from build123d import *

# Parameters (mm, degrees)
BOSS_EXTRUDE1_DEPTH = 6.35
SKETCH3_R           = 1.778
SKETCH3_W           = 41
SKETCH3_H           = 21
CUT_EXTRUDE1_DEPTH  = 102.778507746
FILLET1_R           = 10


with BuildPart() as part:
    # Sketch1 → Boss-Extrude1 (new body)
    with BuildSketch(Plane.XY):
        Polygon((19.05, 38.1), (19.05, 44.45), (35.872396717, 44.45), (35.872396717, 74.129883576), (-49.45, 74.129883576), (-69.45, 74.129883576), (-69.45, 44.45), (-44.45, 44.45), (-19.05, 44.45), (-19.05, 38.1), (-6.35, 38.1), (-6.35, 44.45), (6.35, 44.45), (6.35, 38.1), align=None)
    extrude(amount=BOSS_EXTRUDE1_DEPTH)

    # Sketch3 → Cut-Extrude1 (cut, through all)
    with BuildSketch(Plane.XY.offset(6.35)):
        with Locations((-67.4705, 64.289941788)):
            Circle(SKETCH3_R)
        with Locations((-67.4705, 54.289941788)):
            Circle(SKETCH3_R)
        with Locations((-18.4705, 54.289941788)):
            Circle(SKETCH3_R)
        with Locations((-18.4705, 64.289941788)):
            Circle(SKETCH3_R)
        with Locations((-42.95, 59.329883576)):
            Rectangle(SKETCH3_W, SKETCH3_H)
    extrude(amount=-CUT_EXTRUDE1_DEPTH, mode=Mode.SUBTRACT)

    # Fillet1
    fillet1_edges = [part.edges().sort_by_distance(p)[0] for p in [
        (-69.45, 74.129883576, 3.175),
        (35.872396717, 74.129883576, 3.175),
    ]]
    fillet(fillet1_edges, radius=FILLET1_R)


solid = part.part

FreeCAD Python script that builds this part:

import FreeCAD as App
import Part
import Sketcher
from FreeCAD import Vector


def edges_at(feature, points):
    """Names of the edges that pass closest to the given points."""
    edges = feature.Shape.Edges
    near = lambda p: min(range(len(edges)), key=lambda i: edges[i].distToShape(Part.Vertex(*p))[0])
    return sorted({f"Edge{near(p) + 1}" for p in points})


def add_polygon(sketch, points):
    """Adds a closed chain of lines whose ends are joined by coincident constraints."""
    first, n = sketch.GeometryCount, len(points)
    for a, b in zip(points, points[1:] + points[:1]):
        sketch.addGeometry(Part.LineSegment(App.Vector(*a, 0), App.Vector(*b, 0)), False)
    for i in range(n):
        sketch.addConstraint(Sketcher.Constraint("Coincident", first + i, 2, first + (i + 1) % n, 1))

doc = App.newDocument("Part")
body = doc.addObject("PartDesign::Body", "Body")

sketch1 = body.newObject("Sketcher::SketchObject", "Sketch")
sketch1.AttachmentSupport = (doc.getObject("XY_Plane"), [""])
sketch1.MapMode = "FlatFace"
add_polygon(sketch1, [(19, 38), (19, 44), (36, 44), (36, 74), (-69, 74), (-69, 44), (-19, 44), (-19, 38), (-6, 38), (-6, 44), (6, 44), (6, 38)])
sketch1.addConstraint([
    Sketcher.Constraint("Vertical", 0),
    Sketcher.Constraint("Horizontal", 1),
    Sketcher.Constraint("Vertical", 2),
    Sketcher.Constraint("Horizontal", 3),
    Sketcher.Constraint("Vertical", 4),
    Sketcher.Constraint("Horizontal", 5),
    Sketcher.Constraint("Vertical", 6),
    Sketcher.Constraint("Horizontal", 7),
    Sketcher.Constraint("Vertical", 8),
    Sketcher.Constraint("Horizontal", 9),
    Sketcher.Constraint("Vertical", 10),
    Sketcher.Constraint("Horizontal", 11),
    Sketcher.Constraint("Symmetric", 0, 2, 5, 2, -2),
    Sketcher.Constraint("Symmetric", 7, 2, 10, 2, -2),
    Sketcher.Constraint("Horizontal", 5, 2, 8, 2),
    Sketcher.Constraint("Equal", 7, 9),
    Sketcher.Constraint("DistanceX", 5, 1, 5, 2, 50.4),
    Sketcher.Constraint("DistanceX", 7, 1, 7, 2, 12.7),
    Sketcher.Constraint("DistanceY", 0, 1, 0, 2, 6.35),
    Sketcher.Constraint("DistanceY", -1, 1, 6, 2, 38.1),
    Sketcher.Constraint("DistanceX", 1, 1, 1, 2, 16.822397),
    Sketcher.Constraint("DistanceY", 2, 1, 2, 2, 29.679884),
])
pad1 = body.newObject("PartDesign::Pad", "Pad")
pad1.Profile = sketch1
pad1.Length = 6.35

sketch2 = body.newObject("Sketcher::SketchObject", "Sketch001")
sketch2.AttachmentSupport = (doc.getObject("XY_Plane"), [""])
sketch2.MapMode = "FlatFace"
sketch2.AttachmentOffset = App.Placement(Vector(0, 0, 6.35), App.Rotation())
sketch2.addGeometry(Part.Circle(Vector(-67.5, 64.3, 0), Vector(0, 0, 1), 1.8), False)
sketch2.addGeometry(Part.Circle(Vector(-67.5, 54.3, 0), Vector(0, 0, 1), 1.8), False)
sketch2.addGeometry(Part.Circle(Vector(-18.5, 54.3, 0), Vector(0, 0, 1), 1.8), False)
sketch2.addGeometry(Part.Circle(Vector(-18.5, 64.3, 0), Vector(0, 0, 1), 1.8), False)
add_polygon(sketch2, [(-63.5, 69.8), (-63.5, 48.8), (-22.4, 48.8), (-22.4, 69.8)])
sketch2.addConstraint([
    Sketcher.Constraint("Vertical", 4),
    Sketcher.Constraint("Horizontal", 5),
    Sketcher.Constraint("Vertical", 6),
    Sketcher.Constraint("Horizontal", 7),
    Sketcher.Constraint("Equal", 0, 1),
    Sketcher.Constraint("Equal", 1, 2),
    Sketcher.Constraint("Equal", 2, 3),
    Sketcher.Constraint("Horizontal", 1, 3, 2, 3),
    Sketcher.Constraint("Horizontal", 0, 3, 3, 3),
    Sketcher.Constraint("Vertical", 0, 3, 1, 3),
    Sketcher.Constraint("Vertical", 2, 3, 3, 3),
    Sketcher.Constraint("DistanceX", 5, 1, 5, 2, 41.0),
    Sketcher.Constraint("DistanceY", 4, 2, 4, 1, 21.0),
    Sketcher.Constraint("Diameter", 0, 3.556),
    Sketcher.Constraint("DistanceY", 1, 3, 0, 3, 10.0),
    Sketcher.Constraint("DistanceX", 1, 3, 2, 3, 49.0),
    Sketcher.Constraint("DistanceX", 4, 2, -1, 1, 63.45),
    Sketcher.Constraint("DistanceX", 0, 3, -1, 1, 67.4705),
    Sketcher.Constraint("DistanceY", -1, 1, 0, 3, 64.289942),
    Sketcher.Constraint("DistanceY", 4, 2, 1, 3, 5.460058),
])
pocket1 = body.newObject("PartDesign::Pocket", "Pocket")
pocket1.Profile = sketch2
pocket1.Type = "ThroughAll"
doc.recompute()

fillet = body.newObject("PartDesign::Fillet", "Fillet")
fillet.Base = (pocket1, edges_at(pocket1, [(-69.45, 74.13, 3.175), (35.872, 74.13, 3.175)]))
fillet.Radius = 10

doc.recompute()
